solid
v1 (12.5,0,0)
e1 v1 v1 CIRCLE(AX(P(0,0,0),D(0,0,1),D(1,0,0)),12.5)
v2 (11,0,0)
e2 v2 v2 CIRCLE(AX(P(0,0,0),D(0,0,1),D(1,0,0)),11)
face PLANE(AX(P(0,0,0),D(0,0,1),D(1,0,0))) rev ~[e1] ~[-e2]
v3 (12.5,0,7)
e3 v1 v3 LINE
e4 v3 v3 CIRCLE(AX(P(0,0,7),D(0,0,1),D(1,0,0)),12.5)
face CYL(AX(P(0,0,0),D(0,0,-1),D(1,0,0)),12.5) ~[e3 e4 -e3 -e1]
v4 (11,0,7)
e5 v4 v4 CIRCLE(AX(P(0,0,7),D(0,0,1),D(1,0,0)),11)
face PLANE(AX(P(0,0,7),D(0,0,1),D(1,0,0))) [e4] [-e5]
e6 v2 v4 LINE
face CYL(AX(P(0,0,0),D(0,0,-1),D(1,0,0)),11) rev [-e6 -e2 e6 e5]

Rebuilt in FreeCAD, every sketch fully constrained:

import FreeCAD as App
import Part
import Sketcher

doc = App.newDocument("Part")
body = doc.addObject("PartDesign::Body", "Body")

# Sketch on XY plane
sketch1 = body.newObject("Sketcher::SketchObject", "Sketch")
sketch1.AttachmentSupport = (doc.getObject("XY_Plane"), [""])
sketch1.MapMode = "FlatFace"
sketch1.addGeometry([
    Part.Circle(App.Vector(0, 0, 0), App.Vector(0, 0, 1), 12),
    Part.Circle(App.Vector(0, 0, 0), App.Vector(0, 0, 1), 11),
], False)
sketch1.addConstraint([
    Sketcher.Constraint("Coincident", 0, 3, -1, 1),
    Sketcher.Constraint("Coincident", 1, 3, -1, 1),
    Sketcher.Constraint("Diameter", 0, 25.0),
    Sketcher.Constraint("Diameter", 1, 22.0),
])
pad1 = body.newObject("PartDesign::Pad", "Pad")
pad1.Profile = sketch1
pad1.Length = 7

doc.recompute()
